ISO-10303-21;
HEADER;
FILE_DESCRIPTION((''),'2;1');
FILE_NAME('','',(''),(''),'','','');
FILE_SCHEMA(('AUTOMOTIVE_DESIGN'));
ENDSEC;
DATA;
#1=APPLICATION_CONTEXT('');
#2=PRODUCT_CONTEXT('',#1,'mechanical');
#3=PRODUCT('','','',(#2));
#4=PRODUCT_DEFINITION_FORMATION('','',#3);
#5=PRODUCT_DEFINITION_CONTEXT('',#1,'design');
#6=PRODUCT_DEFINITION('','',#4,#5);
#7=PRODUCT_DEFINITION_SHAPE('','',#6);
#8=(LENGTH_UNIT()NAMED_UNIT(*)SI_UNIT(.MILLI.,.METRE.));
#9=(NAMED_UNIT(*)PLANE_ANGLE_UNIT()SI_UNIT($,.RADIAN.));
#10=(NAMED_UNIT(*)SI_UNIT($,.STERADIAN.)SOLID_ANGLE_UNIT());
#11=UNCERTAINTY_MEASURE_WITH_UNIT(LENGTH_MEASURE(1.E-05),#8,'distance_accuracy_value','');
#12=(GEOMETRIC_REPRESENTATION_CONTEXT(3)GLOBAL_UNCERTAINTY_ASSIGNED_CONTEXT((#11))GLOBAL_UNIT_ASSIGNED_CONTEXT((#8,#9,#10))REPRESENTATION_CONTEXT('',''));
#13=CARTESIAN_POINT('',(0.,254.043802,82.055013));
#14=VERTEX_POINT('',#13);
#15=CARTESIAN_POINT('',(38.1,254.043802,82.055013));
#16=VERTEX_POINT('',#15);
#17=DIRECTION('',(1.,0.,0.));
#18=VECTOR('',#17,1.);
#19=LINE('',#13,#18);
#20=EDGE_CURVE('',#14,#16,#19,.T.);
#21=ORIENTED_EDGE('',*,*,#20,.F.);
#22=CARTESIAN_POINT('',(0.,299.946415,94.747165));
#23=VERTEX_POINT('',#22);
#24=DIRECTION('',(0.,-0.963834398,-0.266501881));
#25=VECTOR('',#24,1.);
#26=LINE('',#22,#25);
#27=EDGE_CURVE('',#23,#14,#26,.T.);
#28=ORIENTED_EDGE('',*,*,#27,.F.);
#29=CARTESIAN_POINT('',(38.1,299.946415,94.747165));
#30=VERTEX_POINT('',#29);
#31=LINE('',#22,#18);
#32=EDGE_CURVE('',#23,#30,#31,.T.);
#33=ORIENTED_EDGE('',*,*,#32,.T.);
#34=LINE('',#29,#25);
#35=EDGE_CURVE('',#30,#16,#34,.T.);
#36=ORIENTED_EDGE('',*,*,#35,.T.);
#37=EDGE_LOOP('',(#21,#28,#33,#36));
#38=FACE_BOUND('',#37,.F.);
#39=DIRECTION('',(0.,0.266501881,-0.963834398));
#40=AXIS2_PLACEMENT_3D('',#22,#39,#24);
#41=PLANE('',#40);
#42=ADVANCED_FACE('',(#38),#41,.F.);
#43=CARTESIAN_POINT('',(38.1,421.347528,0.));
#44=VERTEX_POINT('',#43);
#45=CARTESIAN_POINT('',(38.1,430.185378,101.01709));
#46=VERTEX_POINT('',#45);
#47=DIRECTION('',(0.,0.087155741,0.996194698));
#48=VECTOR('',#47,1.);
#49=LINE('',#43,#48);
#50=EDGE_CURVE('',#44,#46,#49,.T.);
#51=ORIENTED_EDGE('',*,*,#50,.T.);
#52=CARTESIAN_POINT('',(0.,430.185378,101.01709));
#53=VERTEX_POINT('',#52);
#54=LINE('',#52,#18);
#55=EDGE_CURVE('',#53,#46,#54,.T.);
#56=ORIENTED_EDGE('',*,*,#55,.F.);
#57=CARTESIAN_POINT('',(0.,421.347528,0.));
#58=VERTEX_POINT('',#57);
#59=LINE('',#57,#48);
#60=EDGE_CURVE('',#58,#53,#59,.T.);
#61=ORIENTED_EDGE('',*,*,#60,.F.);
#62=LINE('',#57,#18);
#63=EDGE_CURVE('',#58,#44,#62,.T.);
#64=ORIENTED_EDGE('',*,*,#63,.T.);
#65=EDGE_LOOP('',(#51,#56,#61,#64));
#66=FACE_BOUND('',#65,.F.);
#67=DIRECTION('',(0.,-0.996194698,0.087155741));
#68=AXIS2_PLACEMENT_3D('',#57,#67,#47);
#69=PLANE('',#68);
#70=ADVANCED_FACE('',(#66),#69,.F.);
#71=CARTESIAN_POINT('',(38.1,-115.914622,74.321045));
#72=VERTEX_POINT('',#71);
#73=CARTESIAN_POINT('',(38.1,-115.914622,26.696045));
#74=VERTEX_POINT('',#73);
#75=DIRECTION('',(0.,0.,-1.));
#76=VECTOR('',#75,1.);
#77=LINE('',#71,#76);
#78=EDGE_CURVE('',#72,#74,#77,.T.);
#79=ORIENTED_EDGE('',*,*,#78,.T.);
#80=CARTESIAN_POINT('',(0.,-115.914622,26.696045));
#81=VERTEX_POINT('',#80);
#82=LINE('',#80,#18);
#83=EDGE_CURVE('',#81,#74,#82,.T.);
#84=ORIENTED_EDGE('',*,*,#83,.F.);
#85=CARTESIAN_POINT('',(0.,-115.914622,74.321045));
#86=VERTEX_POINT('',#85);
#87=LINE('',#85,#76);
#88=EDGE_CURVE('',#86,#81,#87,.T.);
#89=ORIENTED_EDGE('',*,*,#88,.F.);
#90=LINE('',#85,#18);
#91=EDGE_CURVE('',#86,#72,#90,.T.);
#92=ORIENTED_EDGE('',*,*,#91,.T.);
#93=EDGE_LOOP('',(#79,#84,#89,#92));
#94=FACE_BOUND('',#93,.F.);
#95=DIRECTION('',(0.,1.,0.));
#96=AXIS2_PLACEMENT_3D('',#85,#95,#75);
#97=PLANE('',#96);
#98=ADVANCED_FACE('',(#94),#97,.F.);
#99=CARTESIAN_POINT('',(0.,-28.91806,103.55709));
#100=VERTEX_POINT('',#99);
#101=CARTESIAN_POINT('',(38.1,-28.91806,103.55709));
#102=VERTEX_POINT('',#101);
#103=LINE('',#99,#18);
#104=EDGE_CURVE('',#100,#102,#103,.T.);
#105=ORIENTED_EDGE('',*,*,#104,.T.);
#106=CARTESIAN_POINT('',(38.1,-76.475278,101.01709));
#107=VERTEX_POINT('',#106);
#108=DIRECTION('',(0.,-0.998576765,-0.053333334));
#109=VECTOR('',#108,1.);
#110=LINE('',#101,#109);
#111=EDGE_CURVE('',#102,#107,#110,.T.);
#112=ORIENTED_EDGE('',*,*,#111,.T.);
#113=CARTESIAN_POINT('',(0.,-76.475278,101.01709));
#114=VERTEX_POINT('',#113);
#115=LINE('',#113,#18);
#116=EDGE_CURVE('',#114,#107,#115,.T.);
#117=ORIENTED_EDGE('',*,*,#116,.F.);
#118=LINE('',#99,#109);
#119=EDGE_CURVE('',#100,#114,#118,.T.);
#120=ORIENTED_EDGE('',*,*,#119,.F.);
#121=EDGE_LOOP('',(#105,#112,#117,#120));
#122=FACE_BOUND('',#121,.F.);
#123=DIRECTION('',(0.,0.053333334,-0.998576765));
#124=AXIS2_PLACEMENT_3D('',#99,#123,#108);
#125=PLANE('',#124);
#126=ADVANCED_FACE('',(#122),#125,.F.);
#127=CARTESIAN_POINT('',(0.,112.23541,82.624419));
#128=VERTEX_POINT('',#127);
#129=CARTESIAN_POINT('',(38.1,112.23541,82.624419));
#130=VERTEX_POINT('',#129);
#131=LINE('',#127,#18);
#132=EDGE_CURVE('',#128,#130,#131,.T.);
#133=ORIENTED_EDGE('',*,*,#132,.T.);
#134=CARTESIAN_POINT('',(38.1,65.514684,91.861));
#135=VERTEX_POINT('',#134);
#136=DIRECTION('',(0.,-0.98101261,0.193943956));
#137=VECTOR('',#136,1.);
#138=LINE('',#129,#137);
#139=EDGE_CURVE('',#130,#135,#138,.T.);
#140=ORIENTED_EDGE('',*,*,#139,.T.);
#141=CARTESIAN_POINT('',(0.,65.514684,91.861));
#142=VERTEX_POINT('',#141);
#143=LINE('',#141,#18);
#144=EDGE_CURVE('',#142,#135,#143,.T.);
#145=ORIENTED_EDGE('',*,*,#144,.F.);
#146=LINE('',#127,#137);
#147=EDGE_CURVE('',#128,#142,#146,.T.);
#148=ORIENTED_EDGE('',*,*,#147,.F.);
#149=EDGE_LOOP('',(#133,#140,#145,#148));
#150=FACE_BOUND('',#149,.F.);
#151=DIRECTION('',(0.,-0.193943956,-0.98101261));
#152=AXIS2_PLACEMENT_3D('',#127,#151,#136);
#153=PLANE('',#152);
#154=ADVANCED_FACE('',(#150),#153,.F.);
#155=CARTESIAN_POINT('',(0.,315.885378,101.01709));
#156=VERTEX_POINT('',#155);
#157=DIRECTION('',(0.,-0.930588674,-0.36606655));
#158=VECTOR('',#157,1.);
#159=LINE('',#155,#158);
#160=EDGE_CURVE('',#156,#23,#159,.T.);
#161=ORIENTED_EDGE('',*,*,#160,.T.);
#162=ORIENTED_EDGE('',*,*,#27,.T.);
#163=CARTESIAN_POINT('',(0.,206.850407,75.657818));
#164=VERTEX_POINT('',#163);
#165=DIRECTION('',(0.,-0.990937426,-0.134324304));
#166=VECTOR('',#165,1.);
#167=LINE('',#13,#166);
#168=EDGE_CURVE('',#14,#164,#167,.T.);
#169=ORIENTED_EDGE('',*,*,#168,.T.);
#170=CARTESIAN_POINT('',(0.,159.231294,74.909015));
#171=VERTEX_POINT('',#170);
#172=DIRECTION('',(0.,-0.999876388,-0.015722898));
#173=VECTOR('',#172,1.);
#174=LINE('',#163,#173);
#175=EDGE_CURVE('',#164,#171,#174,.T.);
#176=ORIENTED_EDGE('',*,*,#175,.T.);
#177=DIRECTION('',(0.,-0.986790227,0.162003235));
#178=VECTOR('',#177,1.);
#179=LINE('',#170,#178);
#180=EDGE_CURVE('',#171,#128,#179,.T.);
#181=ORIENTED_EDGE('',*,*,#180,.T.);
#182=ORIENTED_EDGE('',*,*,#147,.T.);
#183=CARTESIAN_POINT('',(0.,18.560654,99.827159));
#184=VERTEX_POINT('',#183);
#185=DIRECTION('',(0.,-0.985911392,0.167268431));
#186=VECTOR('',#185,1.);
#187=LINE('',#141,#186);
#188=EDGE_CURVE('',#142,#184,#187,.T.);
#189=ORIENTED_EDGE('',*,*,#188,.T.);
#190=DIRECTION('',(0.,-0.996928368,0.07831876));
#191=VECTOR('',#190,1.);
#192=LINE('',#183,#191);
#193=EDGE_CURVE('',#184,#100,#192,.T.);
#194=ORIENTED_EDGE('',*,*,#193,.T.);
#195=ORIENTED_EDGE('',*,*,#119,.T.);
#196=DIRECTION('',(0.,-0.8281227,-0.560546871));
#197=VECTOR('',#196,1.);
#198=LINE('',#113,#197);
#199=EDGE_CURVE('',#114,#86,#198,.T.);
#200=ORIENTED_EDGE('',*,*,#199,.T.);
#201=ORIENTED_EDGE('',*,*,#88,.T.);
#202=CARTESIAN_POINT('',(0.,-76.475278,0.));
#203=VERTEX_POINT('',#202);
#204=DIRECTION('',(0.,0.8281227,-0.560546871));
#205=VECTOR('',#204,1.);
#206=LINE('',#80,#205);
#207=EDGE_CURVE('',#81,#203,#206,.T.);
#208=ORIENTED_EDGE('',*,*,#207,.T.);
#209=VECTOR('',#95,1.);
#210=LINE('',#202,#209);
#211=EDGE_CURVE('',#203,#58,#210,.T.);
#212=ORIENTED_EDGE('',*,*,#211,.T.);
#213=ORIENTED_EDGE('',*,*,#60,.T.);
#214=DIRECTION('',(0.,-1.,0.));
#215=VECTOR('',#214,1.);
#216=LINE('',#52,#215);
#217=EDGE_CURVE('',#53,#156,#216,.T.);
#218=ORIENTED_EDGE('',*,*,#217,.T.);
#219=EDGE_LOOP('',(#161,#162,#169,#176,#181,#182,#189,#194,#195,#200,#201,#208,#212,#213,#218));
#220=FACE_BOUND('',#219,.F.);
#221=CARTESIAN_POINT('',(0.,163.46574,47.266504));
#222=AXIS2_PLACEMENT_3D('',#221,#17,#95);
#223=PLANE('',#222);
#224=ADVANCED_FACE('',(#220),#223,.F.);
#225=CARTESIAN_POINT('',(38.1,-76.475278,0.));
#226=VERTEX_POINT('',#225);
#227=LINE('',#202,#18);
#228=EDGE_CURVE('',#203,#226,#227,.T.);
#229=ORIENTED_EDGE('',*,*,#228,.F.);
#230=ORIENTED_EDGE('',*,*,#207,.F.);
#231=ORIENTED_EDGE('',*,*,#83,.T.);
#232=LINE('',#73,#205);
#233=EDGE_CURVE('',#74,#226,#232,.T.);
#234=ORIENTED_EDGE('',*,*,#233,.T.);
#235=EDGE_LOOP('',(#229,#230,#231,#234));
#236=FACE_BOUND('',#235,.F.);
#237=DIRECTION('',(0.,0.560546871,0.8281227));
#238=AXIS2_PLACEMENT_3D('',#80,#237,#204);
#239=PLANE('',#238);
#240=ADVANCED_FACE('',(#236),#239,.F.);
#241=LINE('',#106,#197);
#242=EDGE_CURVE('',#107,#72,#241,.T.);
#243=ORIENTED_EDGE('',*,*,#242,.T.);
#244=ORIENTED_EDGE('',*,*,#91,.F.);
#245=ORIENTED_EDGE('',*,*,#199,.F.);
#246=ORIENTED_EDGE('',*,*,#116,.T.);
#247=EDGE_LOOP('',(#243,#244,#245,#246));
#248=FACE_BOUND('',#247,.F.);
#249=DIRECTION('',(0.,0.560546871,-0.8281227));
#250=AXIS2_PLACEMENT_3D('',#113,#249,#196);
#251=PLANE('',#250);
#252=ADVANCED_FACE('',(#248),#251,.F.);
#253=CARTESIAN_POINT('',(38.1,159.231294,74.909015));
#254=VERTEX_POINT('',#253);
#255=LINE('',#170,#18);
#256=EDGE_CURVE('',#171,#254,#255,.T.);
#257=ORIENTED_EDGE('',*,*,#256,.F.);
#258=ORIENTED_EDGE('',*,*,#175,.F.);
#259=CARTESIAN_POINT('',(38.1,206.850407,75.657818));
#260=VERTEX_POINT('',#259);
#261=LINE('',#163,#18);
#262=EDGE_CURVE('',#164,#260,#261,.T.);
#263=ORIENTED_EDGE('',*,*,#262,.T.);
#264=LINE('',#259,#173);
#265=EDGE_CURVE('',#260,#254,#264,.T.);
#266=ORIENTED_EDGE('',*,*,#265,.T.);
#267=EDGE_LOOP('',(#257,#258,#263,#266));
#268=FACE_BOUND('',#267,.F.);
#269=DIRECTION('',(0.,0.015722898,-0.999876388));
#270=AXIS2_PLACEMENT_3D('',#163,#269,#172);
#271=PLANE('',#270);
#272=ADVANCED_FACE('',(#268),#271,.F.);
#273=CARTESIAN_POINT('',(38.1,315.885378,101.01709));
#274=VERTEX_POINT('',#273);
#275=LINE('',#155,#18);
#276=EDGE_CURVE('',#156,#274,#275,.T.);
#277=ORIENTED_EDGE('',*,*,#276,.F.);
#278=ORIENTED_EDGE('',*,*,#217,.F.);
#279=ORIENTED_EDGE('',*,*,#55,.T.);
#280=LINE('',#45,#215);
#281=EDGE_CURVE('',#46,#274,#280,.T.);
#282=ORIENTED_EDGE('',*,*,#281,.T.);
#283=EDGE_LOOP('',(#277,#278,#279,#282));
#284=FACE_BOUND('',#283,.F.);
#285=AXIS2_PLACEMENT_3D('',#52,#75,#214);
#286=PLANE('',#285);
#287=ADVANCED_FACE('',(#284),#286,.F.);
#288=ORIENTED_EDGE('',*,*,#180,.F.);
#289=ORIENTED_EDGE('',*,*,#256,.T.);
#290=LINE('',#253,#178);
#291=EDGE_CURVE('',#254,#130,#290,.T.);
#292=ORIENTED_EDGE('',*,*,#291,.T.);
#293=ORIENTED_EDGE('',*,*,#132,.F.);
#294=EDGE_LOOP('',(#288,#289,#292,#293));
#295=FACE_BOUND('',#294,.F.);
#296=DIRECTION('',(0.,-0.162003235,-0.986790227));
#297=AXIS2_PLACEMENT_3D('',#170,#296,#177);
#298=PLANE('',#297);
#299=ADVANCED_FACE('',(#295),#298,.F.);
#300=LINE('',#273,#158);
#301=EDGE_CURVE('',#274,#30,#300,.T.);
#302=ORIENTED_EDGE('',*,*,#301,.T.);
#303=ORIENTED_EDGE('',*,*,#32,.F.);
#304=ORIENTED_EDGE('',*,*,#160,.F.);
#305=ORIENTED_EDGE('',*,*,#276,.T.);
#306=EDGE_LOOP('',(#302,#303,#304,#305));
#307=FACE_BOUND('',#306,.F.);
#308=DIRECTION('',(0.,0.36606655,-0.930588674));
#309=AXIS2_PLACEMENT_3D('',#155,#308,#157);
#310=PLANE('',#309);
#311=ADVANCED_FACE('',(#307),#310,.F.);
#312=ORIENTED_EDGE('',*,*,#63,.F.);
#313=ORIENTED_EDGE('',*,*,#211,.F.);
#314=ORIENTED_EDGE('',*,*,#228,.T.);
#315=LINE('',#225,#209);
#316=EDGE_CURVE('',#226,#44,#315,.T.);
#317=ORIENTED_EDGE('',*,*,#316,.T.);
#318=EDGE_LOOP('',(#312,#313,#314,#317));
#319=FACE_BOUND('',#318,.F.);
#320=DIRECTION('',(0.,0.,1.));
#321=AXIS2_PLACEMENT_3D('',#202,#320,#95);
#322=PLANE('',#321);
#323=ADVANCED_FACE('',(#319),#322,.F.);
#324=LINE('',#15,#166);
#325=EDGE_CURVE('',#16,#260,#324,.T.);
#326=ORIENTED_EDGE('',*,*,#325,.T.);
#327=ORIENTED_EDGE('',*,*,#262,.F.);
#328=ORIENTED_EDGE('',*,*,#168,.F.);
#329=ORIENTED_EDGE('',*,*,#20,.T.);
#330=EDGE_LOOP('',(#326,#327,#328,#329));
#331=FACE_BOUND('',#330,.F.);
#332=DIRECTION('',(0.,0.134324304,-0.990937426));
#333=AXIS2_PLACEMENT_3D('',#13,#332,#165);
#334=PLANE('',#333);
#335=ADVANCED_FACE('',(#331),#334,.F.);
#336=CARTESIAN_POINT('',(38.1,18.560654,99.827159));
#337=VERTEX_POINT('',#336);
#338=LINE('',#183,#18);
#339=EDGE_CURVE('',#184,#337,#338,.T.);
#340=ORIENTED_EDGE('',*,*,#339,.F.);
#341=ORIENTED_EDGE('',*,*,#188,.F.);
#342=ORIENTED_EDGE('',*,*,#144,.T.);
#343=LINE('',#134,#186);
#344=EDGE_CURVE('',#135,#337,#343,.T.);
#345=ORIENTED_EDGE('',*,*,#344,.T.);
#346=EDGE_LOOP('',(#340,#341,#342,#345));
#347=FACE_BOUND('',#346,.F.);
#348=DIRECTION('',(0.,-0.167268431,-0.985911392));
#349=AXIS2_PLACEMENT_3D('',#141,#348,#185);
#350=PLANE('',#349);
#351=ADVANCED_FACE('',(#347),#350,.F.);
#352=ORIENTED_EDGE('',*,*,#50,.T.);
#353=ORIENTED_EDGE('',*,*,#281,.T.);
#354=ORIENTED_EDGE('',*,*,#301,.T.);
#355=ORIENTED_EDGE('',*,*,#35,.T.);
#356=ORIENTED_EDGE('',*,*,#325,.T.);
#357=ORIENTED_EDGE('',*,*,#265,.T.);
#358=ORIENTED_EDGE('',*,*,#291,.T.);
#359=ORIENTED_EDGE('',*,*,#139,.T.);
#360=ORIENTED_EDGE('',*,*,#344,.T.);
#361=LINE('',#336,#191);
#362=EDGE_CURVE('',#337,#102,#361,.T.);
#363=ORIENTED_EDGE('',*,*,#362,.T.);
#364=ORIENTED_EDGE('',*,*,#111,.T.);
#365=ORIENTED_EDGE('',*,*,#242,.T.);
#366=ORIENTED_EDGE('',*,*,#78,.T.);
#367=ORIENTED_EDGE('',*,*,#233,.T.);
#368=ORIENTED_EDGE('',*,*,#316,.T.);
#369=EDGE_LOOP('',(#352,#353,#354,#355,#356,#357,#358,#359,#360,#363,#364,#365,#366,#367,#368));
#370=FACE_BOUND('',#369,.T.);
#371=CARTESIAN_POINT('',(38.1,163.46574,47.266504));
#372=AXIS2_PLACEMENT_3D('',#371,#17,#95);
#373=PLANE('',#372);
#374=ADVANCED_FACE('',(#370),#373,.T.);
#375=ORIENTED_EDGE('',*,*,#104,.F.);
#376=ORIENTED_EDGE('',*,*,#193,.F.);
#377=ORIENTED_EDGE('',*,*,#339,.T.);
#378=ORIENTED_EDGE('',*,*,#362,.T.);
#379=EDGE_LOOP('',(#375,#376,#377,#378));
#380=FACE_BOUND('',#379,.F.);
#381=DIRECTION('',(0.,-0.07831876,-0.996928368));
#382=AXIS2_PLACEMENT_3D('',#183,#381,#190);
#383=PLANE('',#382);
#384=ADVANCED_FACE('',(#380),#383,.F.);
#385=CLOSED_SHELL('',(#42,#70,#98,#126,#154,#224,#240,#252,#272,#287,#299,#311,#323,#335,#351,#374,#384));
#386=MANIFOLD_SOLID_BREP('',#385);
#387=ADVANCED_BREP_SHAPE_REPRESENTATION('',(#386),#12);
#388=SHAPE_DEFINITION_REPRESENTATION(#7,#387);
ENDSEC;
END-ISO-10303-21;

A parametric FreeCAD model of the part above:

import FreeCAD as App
import Part
import Sketcher
Q = App.Units.Quantity


def add_polygon(sketch, points):
    """Adds a closed chain of lines whose ends are joined by coincident constraints."""
    first, n = sketch.GeometryCount, len(points)
    for a, b in zip(points, points[1:] + points[:1]):
        sketch.addGeometry(Part.LineSegment(App.Vector(*a, 0), App.Vector(*b, 0)), False)
    for i in range(n):
        sketch.addConstraint(Sketcher.Constraint("Coincident", first + i, 2, first + (i + 1) % n, 1))

doc = App.newDocument("Part")
body = doc.addObject("PartDesign::Body", "Body")

sketch1 = body.newObject("Sketcher::SketchObject", "Sketch")
sketch1.AttachmentSupport = (doc.getObject("YZ_Plane"), [""])
sketch1.MapMode = "FlatFace"
add_polygon(sketch1, [(-115.914622, 26.696045), (-76.475278, 0), (421.347528, 0), (430.185378, 101.01709), (315.885378, 101.01709), (299.946415, 94.747165), (254.043802, 82.055013), (206.850407, 75.657818), (159.231294, 74.909015), (112.23541, 82.624419), (65.514684, 91.861), (18.560654, 99.827159), (-28.91806, 103.55709), (-76.475278, 101.01709), (-115.914622, 74.321045)])
sketch1.addConstraint([
    Sketcher.Constraint("Horizontal", 1),
    Sketcher.Constraint("Horizontal", 3),
    Sketcher.Constraint("Vertical", 14),
    Sketcher.Constraint("PointOnObject", 0, 2, -1),
    Sketcher.Constraint("Horizontal", 3, 2, 12, 2),
    Sketcher.Constraint("Vertical", 0, 2, 12, 2),
    Sketcher.Constraint("Equal", 0, 5),
    Sketcher.Constraint("Equal", 5, 6),
    Sketcher.Constraint("Equal", 6, 7),
    Sketcher.Constraint("Equal", 7, 8),
    Sketcher.Constraint("Equal", 8, 9),
    Sketcher.Constraint("Equal", 9, 10),
    Sketcher.Constraint("Equal", 10, 11),
    Sketcher.Constraint("Equal", 11, 12),
    Sketcher.Constraint("Equal", 12, 13),
    Sketcher.Constraint("DistanceX", 3, 2, 3, 1, Q("4.5 in")),
    Sketcher.Constraint("Angle", 2, Q("85 deg")),
    Sketcher.Constraint("DistanceY", 12, 2, 11, 2, Q("0.1 in")),
    Sketcher.Constraint("DistanceY", 14, 2, 14, 1, Q("1.875 in")),
    Sketcher.Constraint("Distance", 0, Q("1.875 in")),
    Sketcher.Constraint("DistanceX", 8, 2, 6, 2, Q("3.7249999 in")),
    Sketcher.Constraint("DistanceX", -1, 1, 5, 2, Q("254.043802 mm")),
    Sketcher.Constraint("DistanceY", -1, 1, 9, 2, Q("91.861 mm")),
    Sketcher.Constraint("DistanceY", 7, 2, 5, 2, Q("7.145998 mm")),
    Sketcher.Constraint("DistanceY", 6, 2, 8, 2, Q("6.966601 mm")),
    Sketcher.Constraint("Distance", 2, Q("101.402959 mm")),
    Sketcher.Constraint("Distance", 4, Q("17.127828 mm")),
    Sketcher.Constraint("DistanceX", 1, 1, 1, 2, Q("497.822806 mm")),
    Sketcher.Constraint("DistanceX", 0, 2, -1, 1, Q("76.475278 mm")),
    Sketcher.Constraint("DistanceY", -1, 1, 6, 2, Q("75.657818 mm")),
])
pad1 = body.newObject("PartDesign::Pad", "Pad")
pad1.Profile = sketch1
pad1.Length = Q("1.5 in")

doc.recompute()
